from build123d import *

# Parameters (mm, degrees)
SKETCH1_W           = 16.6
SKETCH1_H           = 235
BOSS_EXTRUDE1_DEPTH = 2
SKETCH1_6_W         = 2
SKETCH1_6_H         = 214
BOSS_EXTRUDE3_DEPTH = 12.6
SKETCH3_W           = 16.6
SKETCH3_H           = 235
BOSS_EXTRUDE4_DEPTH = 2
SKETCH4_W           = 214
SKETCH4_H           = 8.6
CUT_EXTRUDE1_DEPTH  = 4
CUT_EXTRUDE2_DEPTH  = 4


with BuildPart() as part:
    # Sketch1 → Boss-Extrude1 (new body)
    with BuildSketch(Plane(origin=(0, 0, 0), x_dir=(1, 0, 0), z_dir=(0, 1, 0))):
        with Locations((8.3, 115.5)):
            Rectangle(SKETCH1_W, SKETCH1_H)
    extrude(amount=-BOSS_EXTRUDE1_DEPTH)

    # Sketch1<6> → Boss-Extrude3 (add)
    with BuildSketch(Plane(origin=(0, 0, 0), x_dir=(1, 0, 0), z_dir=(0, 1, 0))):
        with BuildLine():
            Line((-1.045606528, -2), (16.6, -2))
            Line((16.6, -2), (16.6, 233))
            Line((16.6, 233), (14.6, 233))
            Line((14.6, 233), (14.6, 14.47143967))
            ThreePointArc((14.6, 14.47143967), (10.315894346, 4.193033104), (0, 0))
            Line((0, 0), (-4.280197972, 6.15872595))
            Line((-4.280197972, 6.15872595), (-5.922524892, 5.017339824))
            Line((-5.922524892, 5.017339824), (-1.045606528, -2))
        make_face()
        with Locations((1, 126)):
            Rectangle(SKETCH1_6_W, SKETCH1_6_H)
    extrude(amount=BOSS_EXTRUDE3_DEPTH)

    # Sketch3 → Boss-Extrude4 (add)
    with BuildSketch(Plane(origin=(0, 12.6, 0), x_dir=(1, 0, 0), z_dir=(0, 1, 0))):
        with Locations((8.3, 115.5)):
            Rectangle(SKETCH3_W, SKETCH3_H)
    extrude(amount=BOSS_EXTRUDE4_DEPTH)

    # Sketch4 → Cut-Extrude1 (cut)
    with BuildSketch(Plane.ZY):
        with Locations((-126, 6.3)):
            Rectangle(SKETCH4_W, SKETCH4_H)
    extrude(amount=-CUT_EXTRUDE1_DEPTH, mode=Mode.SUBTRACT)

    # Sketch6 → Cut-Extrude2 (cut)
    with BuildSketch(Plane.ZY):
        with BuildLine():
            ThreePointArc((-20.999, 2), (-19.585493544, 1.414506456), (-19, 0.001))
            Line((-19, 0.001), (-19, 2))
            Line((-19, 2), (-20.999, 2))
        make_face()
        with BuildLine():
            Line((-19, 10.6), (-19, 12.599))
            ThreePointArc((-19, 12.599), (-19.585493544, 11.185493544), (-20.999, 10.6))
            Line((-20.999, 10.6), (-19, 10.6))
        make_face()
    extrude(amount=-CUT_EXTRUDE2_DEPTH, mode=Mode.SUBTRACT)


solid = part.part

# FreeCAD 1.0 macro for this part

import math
import FreeCAD as App
import Part
import Sketcher

V = App.Vector
Q = App.Units.Quantity


def add_polygon(sketch, points):
    """Adds a closed chain of lines whose ends are joined by coincident constraints."""
    first, n = sketch.GeometryCount, len(points)
    for a, b in zip(points, points[1:] + points[:1]):
        sketch.addGeometry(Part.LineSegment(App.Vector(*a, 0), App.Vector(*b, 0)), False)
    for i in range(n):
        sketch.addConstraint(Sketcher.Constraint("Coincident", first + i, 2, first + (i + 1) % n, 1))

doc = App.newDocument("Part")
body = doc.addObject("PartDesign::Body", "Body")

sketch1 = body.newObject("Sketcher::SketchObject", "Sketch")
sketch1.AttachmentSupport = (doc.getObject("XZ_Plane"), [""])
sketch1.MapMode = "FlatFace"
add_polygon(sketch1, [(0, -233), (0, 2), (17, 2), (17, -233)])
sketch1.addConstraint([
    Sketcher.Constraint("Vertical", 0),
    Sketcher.Constraint("Horizontal", 1),
    Sketcher.Constraint("Vertical", 2),
    Sketcher.Constraint("Horizontal", 3),
    Sketcher.Constraint("PointOnObject", 0, 2, -2),
    Sketcher.Constraint("DistanceY", 0, 1, 0, 2, Q("235 mm")),
    Sketcher.Constraint("DistanceX", 1, 1, 1, 2, Q("16.6 mm")),
    Sketcher.Constraint("DistanceY", -1, 1, 0, 2, Q("2 mm")),
])
pad1 = body.newObject("PartDesign::Pad", "Pad")
pad1.Profile = sketch1
pad1.Length = 2

sketch2 = body.newObject("Sketcher::SketchObject", "Sketch001")
sketch2.AttachmentSupport = (doc.getObject("XZ_Plane"), [""])
sketch2.MapMode = "FlatFace"
sketch2.addGeometry(Part.LineSegment(V(-1, 2, 0), V(16.6, 2, 0)), False)
sketch2.addGeometry(Part.LineSegment(V(16.6, 2, 0), V(16.6, -233, 0)), False)
sketch2.addGeometry(Part.LineSegment(V(16.6, -233, 0), V(14.6, -233, 0)), False)
sketch2.addGeometry(Part.LineSegment(V(14.6, -233, 0), V(14.6, -14.5, 0)), False)
sketch2.addGeometry(Part.ArcOfCircle(Part.Circle(V(0.1, -14.5, 0), V(0, 0, 1), 14.5), math.radians(0), math.radians(91)), False)
sketch2.addGeometry(Part.LineSegment(V(0, 0, 0), V(-4.3, -6.2, 0)), False)
sketch2.addGeometry(Part.LineSegment(V(-4.3, -6.2, 0), V(-5.9, -5, 0)), False)
sketch2.addGeometry(Part.LineSegment(V(-5.9, -5, 0), V(-1, 2, 0)), False)
add_polygon(sketch2, [(0, -233), (0, -19), (2, -19), (2, -233)])
sketch2.addConstraint([
    Sketcher.Constraint("Coincident", 0, 2, 1, 1),
    Sketcher.Constraint("Coincident", 1, 2, 2, 1),
    Sketcher.Constraint("Coincident", 2, 2, 3, 1),
    Sketcher.Constraint("Tangent", 3, 2, 4, 1),
    Sketcher.Constraint("Coincident", 4, 2, 5, 1),
    Sketcher.Constraint("Coincident", 5, 2, 6, 1),
    Sketcher.Constraint("Coincident", 6, 2, 7, 1),
    Sketcher.Constraint("Coincident", 7, 2, 0, 1),
    Sketcher.Constraint("Horizontal", 0),
    Sketcher.Constraint("Vertical", 1),
    Sketcher.Constraint("Horizontal", 2),
    Sketcher.Constraint("Vertical", 3),
    Sketcher.Constraint("Vertical", 8),
    Sketcher.Constraint("Horizontal", 9),
    Sketcher.Constraint("Vertical", 10),
    Sketcher.Constraint("Horizontal", 11),
    Sketcher.Constraint("Coincident", 4, 2, -1, 1),
    Sketcher.Constraint("PointOnObject", 8, 2, -2),
    Sketcher.Constraint("Perpendicular", 5, 6),
    Sketcher.Constraint("Perpendicular", 6, 7),
    Sketcher.Constraint("Horizontal", 2, 2, 10, 2),
    Sketcher.Constraint("Equal", 2, 9),
    Sketcher.Constraint("DistanceX", 2, 2, 2, 1, Q("2 mm")),
    Sketcher.Constraint("DistanceY", 1, 2, 1, 1, Q("235 mm")),
    Sketcher.Constraint("DistanceY", 8, 1, 8, 2, Q("214 mm")),
    Sketcher.Constraint("Distance", 6, Q("2 mm")),
    Sketcher.Constraint("DistanceY", -1, 1, 0, 2, Q("2 mm")),
    Sketcher.Constraint("Distance", 5, Q("7.5 mm")),
    Sketcher.Constraint("DistanceX", -1, 1, 0, 2, Q("16.6 mm")),
    Sketcher.Constraint("Radius", 4, Q("14.472006 mm")),
    Sketcher.Constraint("DistanceY", 4, 3, 6, 2, Q("9.4541 mm")),
])
pad2 = body.newObject("PartDesign::Pad", "Pad001")
pad2.Profile = sketch2
pad2.Length = 12.6
pad2.Reversed = True

sketch3 = body.newObject("Sketcher::SketchObject", "Sketch002")
sketch3.AttachmentSupport = (doc.getObject("XZ_Plane"), [""])
sketch3.MapMode = "FlatFace"
sketch3.AttachmentOffset = App.Placement(V(0, 0, -12.6), App.Rotation())
add_polygon(sketch3, [(0, -233), (0, 2), (17, 2), (17, -233)])
sketch3.addConstraint([
    Sketcher.Constraint("Vertical", 0),
    Sketcher.Constraint("Horizontal", 1),
    Sketcher.Constraint("Vertical", 2),
    Sketcher.Constraint("Horizontal", 3),
    Sketcher.Constraint("PointOnObject", 0, 2, -2),
    Sketcher.Constraint("DistanceY", 0, 1, 0, 2, Q("235 mm")),
    Sketcher.Constraint("DistanceX", 1, 1, 1, 2, Q("16.6 mm")),
    Sketcher.Constraint("DistanceY", -1, 1, 0, 2, Q("2 mm")),
])
pad3 = body.newObject("PartDesign::Pad", "Pad002")
pad3.Profile = sketch3
pad3.Length = 2
pad3.Reversed = True

sketch4 = body.newObject("Sketcher::SketchObject", "Sketch003")
sketch4.AttachmentSupport = (doc.getObject("YZ_Plane"), [""])
sketch4.MapMode = "FlatFace"
add_polygon(sketch4, [(11, -233), (2, -233), (2, -19), (11, -19)])
sketch4.addConstraint([
    Sketcher.Constraint("Horizontal", 0),
    Sketcher.Constraint("Vertical", 1),
    Sketcher.Constraint("Horizontal", 2),
    Sketcher.Constraint("Vertical", 3),
    Sketcher.Constraint("DistanceY", 1, 1, 1, 2, Q("214 mm")),
    Sketcher.Constraint("DistanceX", 0, 2, 0, 1, Q("8.6 mm")),
    Sketcher.Constraint("DistanceX", -1, 1, 0, 2, Q("2 mm")),
    Sketcher.Constraint("DistanceY", 0, 2, -1, 1, Q("233 mm")),
])
pocket1 = body.newObject("PartDesign::Pocket", "Pocket")
pocket1.Profile = sketch4
pocket1.Length = 4
pocket1.Reversed = True

sketch5 = body.newObject("Sketcher::SketchObject", "Sketch004")
sketch5.AttachmentSupport = (doc.getObject("YZ_Plane"), [""])
sketch5.MapMode = "FlatFace"
sketch5.addGeometry([
    Part.ArcOfCircle(Part.Circle(V(0, -21, 0), V(0, 0, 1), 2), math.radians(0), math.radians(90)),
    Part.LineSegment(V(0, -19, 0), V(2, -19, 0)),
    Part.LineSegment(V(2, -19, 0), V(2, -21, 0)),
    Part.LineSegment(V(10.6, -19, 0), V(12.6, -19, 0)),
    Part.ArcOfCircle(Part.Circle(V(12.6, -21, 0), V(0, 0, 1), 2), math.radians(90), math.radians(180)),
    Part.LineSegment(V(10.6, -21, 0), V(10.6, -19, 0)),
], False)
sketch5.addConstraint([
    Sketcher.Constraint("Tangent", 0, 2, 1, 1),
    Sketcher.Constraint("Coincident", 1, 2, 2, 1),
    Sketcher.Constraint("Tangent", 2, 2, 0, 1),
    Sketcher.Constraint("Tangent", 3, 2, 4, 1),
    Sketcher.Constraint("Tangent", 4, 2, 5, 1),
    Sketcher.Constraint("Coincident", 5, 2, 3, 1),
    Sketcher.Constraint("Horizontal", 1),
    Sketcher.Constraint("Vertical", 2),
    Sketcher.Constraint("Horizontal", 3),
    Sketcher.Constraint("Vertical", 5),
    Sketcher.Constraint("Equal", 0, 4),
    Sketcher.Constraint("Horizontal", 0, 3, 4, 3),
    Sketcher.Constraint("DistanceY", 0, 2, -1, 1, Q("19 mm")),
    Sketcher.Constraint("DistanceX", -1, 1, 1, 2, Q("2 mm")),
    Sketcher.Constraint("Radius", 0, Q("1.999 mm")),
    Sketcher.Constraint("DistanceX", -1, 1, 4, 2, Q("10.6 mm")),
])
pocket2 = body.newObject("PartDesign::Pocket", "Pocket001")
pocket2.Profile = sketch5
pocket2.Length = 4
pocket2.Reversed = True

doc.recompute()
